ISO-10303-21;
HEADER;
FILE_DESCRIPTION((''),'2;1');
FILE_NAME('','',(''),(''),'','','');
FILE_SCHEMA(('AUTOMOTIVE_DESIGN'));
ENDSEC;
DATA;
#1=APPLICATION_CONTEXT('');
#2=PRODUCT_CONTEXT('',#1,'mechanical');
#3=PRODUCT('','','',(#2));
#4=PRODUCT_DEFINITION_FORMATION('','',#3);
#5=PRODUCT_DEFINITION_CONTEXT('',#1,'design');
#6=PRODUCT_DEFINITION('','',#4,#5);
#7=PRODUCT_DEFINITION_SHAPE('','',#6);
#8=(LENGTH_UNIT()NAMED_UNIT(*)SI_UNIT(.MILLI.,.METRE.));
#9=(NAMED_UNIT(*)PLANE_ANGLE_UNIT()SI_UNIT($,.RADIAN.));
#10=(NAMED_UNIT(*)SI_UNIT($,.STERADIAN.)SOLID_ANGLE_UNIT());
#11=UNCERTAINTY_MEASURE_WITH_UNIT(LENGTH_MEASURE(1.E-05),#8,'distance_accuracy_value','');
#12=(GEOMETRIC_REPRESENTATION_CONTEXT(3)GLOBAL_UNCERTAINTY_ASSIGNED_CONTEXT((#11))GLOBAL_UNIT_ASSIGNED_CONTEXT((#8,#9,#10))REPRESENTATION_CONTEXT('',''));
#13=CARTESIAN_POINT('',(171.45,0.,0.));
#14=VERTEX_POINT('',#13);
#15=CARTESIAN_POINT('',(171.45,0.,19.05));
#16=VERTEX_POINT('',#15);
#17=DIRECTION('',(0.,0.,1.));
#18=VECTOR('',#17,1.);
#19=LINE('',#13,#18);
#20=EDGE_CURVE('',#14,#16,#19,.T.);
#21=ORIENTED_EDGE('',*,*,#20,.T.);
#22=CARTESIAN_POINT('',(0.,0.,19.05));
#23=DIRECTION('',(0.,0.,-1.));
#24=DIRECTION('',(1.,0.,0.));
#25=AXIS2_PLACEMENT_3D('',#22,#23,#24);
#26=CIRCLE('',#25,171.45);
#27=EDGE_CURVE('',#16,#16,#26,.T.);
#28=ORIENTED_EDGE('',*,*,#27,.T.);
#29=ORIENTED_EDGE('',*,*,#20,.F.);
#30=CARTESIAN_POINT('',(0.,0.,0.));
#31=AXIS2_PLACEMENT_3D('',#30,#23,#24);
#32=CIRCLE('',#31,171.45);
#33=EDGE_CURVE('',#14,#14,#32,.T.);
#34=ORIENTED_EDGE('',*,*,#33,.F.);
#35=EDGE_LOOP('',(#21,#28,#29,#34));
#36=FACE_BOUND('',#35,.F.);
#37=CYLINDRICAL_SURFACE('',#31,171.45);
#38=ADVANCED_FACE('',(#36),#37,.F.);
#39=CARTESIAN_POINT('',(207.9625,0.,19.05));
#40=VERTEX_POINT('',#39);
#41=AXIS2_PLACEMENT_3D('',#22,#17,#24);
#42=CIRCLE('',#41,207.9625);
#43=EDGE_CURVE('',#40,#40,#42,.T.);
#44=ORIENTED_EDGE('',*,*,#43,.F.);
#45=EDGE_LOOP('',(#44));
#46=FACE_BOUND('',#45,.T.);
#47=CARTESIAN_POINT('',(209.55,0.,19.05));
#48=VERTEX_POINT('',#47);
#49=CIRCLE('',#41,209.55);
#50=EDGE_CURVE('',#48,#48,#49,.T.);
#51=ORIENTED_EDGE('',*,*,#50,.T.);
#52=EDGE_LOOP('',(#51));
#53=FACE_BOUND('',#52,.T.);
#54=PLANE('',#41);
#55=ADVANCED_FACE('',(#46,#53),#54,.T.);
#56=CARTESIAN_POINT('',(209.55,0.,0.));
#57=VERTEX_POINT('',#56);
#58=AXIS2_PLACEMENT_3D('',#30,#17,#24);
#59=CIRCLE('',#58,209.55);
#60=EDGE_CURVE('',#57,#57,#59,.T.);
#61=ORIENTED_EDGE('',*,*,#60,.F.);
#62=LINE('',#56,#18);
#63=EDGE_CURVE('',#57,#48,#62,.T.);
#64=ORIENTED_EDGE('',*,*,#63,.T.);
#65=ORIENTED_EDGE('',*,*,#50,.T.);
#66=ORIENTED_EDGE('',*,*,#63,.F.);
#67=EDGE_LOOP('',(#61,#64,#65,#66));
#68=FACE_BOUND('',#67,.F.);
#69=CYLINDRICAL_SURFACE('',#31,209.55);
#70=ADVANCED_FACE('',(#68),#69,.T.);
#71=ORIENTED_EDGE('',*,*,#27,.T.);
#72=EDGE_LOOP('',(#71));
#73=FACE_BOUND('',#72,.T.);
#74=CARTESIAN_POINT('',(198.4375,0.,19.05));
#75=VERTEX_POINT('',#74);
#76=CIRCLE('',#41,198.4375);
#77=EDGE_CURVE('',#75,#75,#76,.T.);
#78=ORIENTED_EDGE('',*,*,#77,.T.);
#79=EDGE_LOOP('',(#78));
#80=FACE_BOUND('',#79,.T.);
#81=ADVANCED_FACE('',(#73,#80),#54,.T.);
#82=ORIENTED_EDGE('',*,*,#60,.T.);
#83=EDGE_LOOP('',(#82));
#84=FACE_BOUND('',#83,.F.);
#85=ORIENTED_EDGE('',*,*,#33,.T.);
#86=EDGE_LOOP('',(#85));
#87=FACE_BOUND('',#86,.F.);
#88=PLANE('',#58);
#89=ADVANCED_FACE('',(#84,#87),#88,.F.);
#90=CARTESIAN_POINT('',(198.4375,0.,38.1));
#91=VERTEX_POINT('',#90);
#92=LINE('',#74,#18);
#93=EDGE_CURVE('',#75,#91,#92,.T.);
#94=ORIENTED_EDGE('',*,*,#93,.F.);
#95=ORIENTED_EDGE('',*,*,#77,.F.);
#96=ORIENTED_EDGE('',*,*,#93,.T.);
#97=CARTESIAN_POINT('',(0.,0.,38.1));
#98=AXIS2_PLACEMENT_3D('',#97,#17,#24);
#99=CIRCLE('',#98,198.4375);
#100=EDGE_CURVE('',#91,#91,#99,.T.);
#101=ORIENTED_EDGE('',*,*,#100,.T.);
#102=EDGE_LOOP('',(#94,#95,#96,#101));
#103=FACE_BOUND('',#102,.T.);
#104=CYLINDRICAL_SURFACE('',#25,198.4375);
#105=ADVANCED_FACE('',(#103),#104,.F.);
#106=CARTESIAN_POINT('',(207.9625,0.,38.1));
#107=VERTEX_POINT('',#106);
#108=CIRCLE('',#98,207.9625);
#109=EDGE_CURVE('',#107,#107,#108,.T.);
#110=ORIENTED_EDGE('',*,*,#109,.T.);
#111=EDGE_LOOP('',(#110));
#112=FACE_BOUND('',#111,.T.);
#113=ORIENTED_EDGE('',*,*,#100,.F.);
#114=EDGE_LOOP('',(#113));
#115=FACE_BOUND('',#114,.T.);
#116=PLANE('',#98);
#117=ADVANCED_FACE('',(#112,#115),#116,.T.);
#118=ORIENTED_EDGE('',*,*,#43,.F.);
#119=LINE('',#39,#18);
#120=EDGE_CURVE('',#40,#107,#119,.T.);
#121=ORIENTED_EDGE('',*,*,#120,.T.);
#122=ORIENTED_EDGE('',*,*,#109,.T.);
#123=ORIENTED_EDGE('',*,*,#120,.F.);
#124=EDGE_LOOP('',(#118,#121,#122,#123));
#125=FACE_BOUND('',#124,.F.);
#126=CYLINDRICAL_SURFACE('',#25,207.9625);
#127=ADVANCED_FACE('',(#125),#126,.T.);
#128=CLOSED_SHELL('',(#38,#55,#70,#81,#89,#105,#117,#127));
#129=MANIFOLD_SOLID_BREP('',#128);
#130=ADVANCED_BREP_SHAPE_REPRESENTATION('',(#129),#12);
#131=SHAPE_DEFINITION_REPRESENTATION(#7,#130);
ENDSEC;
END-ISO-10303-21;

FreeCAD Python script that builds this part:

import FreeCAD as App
import Part
import Sketcher
from FreeCAD import Vector
Q = App.Units.Quantity

doc = App.newDocument("Part")
body = doc.addObject("PartDesign::Body", "Body")

# Sketch on XY plane
sketch1 = body.newObject("Sketcher::SketchObject", "Sketch")
sketch1.AttachmentSupport = (doc.getObject("XY_Plane"), [""])
sketch1.MapMode = "FlatFace"
sketch1.addGeometry(Part.Circle(Vector(0, 0, 0), Vector(0, 0, 1), 210), False)
sketch1.addConstraint([
    Sketcher.Constraint("Coincident", 0, 3, -1, 1),
    Sketcher.Constraint("Diameter", 0, Q("16.5 in")),
])
pad1 = body.newObject("PartDesign::Pad", "Pad")
pad1.Profile = sketch1
pad1.Length = Q("0.75 in")

# Sketch on XY plane
sketch2 = body.newObject("Sketcher::SketchObject", "Sketch001")
sketch2.AttachmentSupport = (doc.getObject("XY_Plane"), [""])
sketch2.MapMode = "FlatFace"
sketch2.addGeometry(Part.Circle(Vector(0, 0, 0), Vector(0, 0, 1), 171), False)
sketch2.addConstraint([
    Sketcher.Constraint("Coincident", 0, 3, -1, 1),
    Sketcher.Constraint("Diameter", 0, Q("13.5 in")),
])
pocket1 = body.newObject("PartDesign::Pocket", "Pocket")
pocket1.Profile = sketch2
pocket1.Length = Q("1 in")
pocket1.Reversed = True

# Sketch on XY plane
sketch3 = body.newObject("Sketcher::SketchObject", "Sketch002")
sketch3.AttachmentSupport = (doc.getObject("XY_Plane"), [""])
sketch3.MapMode = "FlatFace"
sketch3.AttachmentOffset = App.Placement(Vector(0, 0, 0.75 * 25.4), App.Rotation())
sketch3.addGeometry([
    Part.Circle(Vector(0, 0, 0), Vector(0, 0, 1), 208),
    Part.Circle(Vector(0, 0, 0), Vector(0, 0, 1), 198),
], False)
sketch3.addConstraint([
    Sketcher.Constraint("Coincident", 0, 3, -1, 1),
    Sketcher.Constraint("Coincident", 1, 3, -1, 1),
    Sketcher.Constraint("Diameter", 0, Q("16.375 in")),
    Sketcher.Constraint("Diameter", 1, Q("15.625 in")),
])
pad2 = body.newObject("PartDesign::Pad", "Pad001")
pad2.Profile = sketch3
pad2.Length = Q("0.75 in")

doc.recompute()
